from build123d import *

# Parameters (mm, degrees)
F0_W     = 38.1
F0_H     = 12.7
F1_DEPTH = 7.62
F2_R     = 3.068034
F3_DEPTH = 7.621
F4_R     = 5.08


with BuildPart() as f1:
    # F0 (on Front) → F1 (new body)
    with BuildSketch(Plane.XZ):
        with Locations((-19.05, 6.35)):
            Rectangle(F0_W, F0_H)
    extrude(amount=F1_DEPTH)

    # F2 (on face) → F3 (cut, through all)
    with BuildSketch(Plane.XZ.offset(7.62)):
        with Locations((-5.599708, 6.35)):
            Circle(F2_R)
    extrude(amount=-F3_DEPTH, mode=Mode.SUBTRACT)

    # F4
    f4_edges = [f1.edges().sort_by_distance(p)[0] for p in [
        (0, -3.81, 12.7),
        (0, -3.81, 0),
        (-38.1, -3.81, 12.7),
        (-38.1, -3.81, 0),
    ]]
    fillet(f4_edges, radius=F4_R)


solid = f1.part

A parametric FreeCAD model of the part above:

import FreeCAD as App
import Part
import Sketcher

V = App.Vector
Q = App.Units.Quantity


def edges_at(feature, points):
    """Names of the edges that pass closest to the given points."""
    edges = feature.Shape.Edges
    near = lambda p: min(range(len(edges)), key=lambda i: edges[i].distToShape(Part.Vertex(*p))[0])
    return sorted({f"Edge{near(p) + 1}" for p in points})

doc = App.newDocument("Part")
body = doc.addObject("PartDesign::Body", "Body")

sketch1 = body.newObject("Sketcher::SketchObject", "Sketch")
sketch1.AttachmentSupport = (doc.getObject("XZ_Plane"), [""])
sketch1.MapMode = "FlatFace"
sketch1.addGeometry([
    Part.LineSegment(V(-38.1, 12.7, 0), V(-38.1, 0, 0)),
    Part.LineSegment(V(-38.1, 0, 0), V(0, 0, 0)),
    Part.LineSegment(V(0, 0, 0), V(0, 12.7, 0)),
    Part.LineSegment(V(0, 12.7, 0), V(-38.1, 12.7, 0)),
], False)
sketch1.addConstraint([
    Sketcher.Constraint("Coincident", 0, 2, 1, 1),
    Sketcher.Constraint("Coincident", 1, 2, 2, 1),
    Sketcher.Constraint("Coincident", 2, 2, 3, 1),
    Sketcher.Constraint("Coincident", 3, 2, 0, 1),
    Sketcher.Constraint("Vertical", 0),
    Sketcher.Constraint("Horizontal", 1),
    Sketcher.Constraint("Vertical", 2),
    Sketcher.Constraint("Horizontal", 3),
    Sketcher.Constraint("Coincident", 1, 2, -1, 1),
    Sketcher.Constraint("DistanceX", 1, 1, 1, 2, Q("1.5 in")),
    Sketcher.Constraint("DistanceY", 0, 2, 0, 1, Q("0.5 in")),
])
pad1 = body.newObject("PartDesign::Pad", "Pad")
pad1.Profile = sketch1
pad1.Length = Q("0.3 in")

sketch2 = body.newObject("Sketcher::SketchObject", "Sketch001")
sketch2.AttachmentSupport = (doc.getObject("XZ_Plane"), [""])
sketch2.MapMode = "FlatFace"
sketch2.AttachmentOffset = App.Placement(V(0, 0, 0.3 * 25.4), App.Rotation())
sketch2.addGeometry(Part.Circle(V(-5.599708, 6.35, 0), V(0, 0, 1), 3.068034), False)
sketch2.addConstraint([
    Sketcher.Constraint("DistanceY", -1, 1, 0, 3, Q("0.25 in")),
    Sketcher.Constraint("Diameter", 0, 6.136068),
    Sketcher.Constraint("DistanceX", 0, 3, -1, 1, 5.599708),
])
pocket1 = body.newObject("PartDesign::Pocket", "Pocket")
pocket1.Profile = sketch2
pocket1.Type = "ThroughAll"
doc.recompute()

fillet = body.newObject("PartDesign::Fillet", "Fillet")
fillet.Base = (pocket1, edges_at(pocket1, [
    (0, -3.81, 12.7),
    (0, -3.81, 0),
    (-38.1, -3.81, 12.7),
    (-38.1, -3.81, 0),
]))
fillet.Radius = Q("0.2 in")

doc.recompute()
